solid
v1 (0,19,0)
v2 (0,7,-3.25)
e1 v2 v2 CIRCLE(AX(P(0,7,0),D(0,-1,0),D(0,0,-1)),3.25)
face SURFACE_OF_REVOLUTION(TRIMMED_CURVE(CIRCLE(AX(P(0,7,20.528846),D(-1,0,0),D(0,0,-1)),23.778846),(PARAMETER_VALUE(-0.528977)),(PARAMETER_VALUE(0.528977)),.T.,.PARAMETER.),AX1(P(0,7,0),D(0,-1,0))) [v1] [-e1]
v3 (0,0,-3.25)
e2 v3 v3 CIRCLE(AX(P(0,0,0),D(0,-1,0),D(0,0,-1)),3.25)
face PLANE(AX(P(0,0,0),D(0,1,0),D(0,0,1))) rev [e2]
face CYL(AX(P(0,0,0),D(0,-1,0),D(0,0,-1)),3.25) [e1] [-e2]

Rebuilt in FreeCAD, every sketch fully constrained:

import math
import FreeCAD as App
import Part
import Sketcher

doc = App.newDocument("Part")
body = doc.addObject("PartDesign::Body", "Body")

# Sketch on XY plane
sketch1 = body.newObject("Sketcher::SketchObject", "Sketch")
sketch1.AttachmentSupport = (doc.getObject("XY_Plane"), [""])
sketch1.MapMode = "FlatFace"
sketch1.addGeometry([
    Part.LineSegment(App.Vector(-3.25, 0, 0), App.Vector(0, 0, 0)),
    Part.LineSegment(App.Vector(0, 0, 0), App.Vector(0, 19, 0)),
    Part.ArcOfCircle(Part.Circle(App.Vector(20.528846, 7, 0), App.Vector(0, 0, 1), 23.778846), math.radians(149.691864), math.radians(180)),
    Part.LineSegment(App.Vector(-3.25, 7, 0), App.Vector(-3.25, 0, 0)),
], False)
sketch1.addConstraint([
    Sketcher.Constraint("Coincident", 0, 2, 1, 1),
    Sketcher.Constraint("Coincident", 1, 2, 2, 1),
    Sketcher.Constraint("Tangent", 2, 2, 3, 1),
    Sketcher.Constraint("Coincident", 3, 2, 0, 1),
    Sketcher.Constraint("Horizontal", 0),
    Sketcher.Constraint("Vertical", 1),
    Sketcher.Constraint("Vertical", 3),
    Sketcher.Constraint("Coincident", 0, 2, -1, 1),
    Sketcher.Constraint("DistanceY", 1, 1, 1, 2, 19.0),
    Sketcher.Constraint("DistanceY", 3, 2, 3, 1, 7.0),
    Sketcher.Constraint("DistanceX", 0, 1, 0, 2, 3.25),
])
revolution = body.newObject("PartDesign::Revolution", "Revolution")
revolution.Profile = sketch1
revolution.ReferenceAxis = (sketch1, ["V_Axis"])
revolution.Angle = 360

doc.recompute()
